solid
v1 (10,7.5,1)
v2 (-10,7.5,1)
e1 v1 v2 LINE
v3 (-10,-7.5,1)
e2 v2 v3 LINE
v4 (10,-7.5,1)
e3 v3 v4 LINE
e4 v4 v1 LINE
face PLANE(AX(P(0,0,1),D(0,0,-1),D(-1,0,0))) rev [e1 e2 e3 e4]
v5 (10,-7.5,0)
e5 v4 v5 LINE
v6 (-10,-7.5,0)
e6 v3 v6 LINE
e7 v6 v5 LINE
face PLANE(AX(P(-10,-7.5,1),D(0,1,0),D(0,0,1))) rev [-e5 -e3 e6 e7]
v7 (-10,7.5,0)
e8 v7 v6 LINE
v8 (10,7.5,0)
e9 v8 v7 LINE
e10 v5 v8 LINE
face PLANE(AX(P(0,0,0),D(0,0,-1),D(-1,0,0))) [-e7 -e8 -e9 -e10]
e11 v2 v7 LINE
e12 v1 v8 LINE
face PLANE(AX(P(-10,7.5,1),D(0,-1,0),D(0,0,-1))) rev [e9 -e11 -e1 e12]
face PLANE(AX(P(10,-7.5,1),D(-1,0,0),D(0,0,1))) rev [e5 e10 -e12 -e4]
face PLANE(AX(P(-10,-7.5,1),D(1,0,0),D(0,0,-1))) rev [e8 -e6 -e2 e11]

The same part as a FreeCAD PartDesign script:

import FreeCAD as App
import Part
import Sketcher

V = App.Vector
Q = App.Units.Quantity


def add_polygon(sketch, points):
    """Adds a closed chain of lines whose ends are joined by coincident constraints."""
    first, n = sketch.GeometryCount, len(points)
    for a, b in zip(points, points[1:] + points[:1]):
        sketch.addGeometry(Part.LineSegment(App.Vector(*a, 0), App.Vector(*b, 0)), False)
    for i in range(n):
        sketch.addConstraint(Sketcher.Constraint("Coincident", first + i, 2, first + (i + 1) % n, 1))

doc = App.newDocument("Part")
body = doc.addObject("PartDesign::Body", "Body")

# Sketch on XY plane
sketch1 = body.newObject("Sketcher::SketchObject", "Sketch")
sketch1.AttachmentSupport = (doc.getObject("XY_Plane"), [""])
sketch1.MapMode = "FlatFace"
add_polygon(sketch1, [(-10, 7.5), (-10, -7.5), (10, -7.5), (10, 7.5)])  # lines 0-3
sketch1.addConstraint([
    Sketcher.Constraint("Vertical", 0),
    Sketcher.Constraint("Horizontal", 1),
    Sketcher.Constraint("Vertical", 2),
    Sketcher.Constraint("Horizontal", 3),
    Sketcher.Constraint("Symmetric", 0, 2, 2, 2, -1, 1),
    Sketcher.Constraint("DistanceX", 1, 1, 1, 2, Q("20 mm")),
    Sketcher.Constraint("DistanceY", 0, 2, 0, 1, Q("15 mm")),
])
pad1 = body.newObject("PartDesign::Pad", "Pad")
pad1.Profile = sketch1
pad1.Length = 1

doc.recompute()
